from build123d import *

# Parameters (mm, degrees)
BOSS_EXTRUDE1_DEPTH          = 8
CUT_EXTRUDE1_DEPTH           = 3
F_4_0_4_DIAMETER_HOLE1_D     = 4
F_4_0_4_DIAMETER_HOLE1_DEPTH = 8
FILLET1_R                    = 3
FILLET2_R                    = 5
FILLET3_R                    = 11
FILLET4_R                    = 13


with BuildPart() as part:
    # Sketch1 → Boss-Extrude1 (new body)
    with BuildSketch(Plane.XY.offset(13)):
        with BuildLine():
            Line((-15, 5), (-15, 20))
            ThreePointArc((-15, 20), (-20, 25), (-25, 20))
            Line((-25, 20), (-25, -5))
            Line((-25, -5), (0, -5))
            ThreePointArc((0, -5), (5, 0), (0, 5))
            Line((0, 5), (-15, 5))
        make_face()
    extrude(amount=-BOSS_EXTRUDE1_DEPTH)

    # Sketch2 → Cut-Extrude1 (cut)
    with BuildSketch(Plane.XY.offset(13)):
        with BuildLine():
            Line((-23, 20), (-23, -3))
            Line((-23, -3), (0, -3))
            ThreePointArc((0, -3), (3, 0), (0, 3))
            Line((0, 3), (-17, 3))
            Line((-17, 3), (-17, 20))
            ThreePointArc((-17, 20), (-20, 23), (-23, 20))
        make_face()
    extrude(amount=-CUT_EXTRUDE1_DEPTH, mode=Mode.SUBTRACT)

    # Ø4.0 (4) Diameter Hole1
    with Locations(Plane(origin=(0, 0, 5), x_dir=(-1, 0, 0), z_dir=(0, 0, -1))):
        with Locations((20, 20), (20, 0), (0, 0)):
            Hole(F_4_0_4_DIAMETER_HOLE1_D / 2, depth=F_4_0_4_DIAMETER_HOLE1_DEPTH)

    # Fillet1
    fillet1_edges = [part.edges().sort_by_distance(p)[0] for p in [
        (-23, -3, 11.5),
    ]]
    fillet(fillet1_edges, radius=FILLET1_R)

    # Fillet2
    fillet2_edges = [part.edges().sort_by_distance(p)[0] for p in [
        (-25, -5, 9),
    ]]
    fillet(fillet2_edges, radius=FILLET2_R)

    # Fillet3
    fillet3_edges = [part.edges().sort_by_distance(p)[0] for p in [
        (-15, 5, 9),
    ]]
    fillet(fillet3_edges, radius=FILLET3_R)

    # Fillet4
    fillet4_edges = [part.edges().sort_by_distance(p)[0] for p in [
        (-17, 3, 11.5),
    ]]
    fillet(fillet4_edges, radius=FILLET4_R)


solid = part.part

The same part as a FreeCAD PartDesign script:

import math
import FreeCAD as App
import Part
import Sketcher
from FreeCAD import Vector
Q = App.Units.Quantity


def edges_at(feature, points):
    """Names of the edges that pass closest to the given points."""
    edges = feature.Shape.Edges
    near = lambda p: min(range(len(edges)), key=lambda i: edges[i].distToShape(Part.Vertex(*p))[0])
    return sorted({f"Edge{near(p) + 1}" for p in points})

doc = App.newDocument("Part")
body = doc.addObject("PartDesign::Body", "Body")

sketch1 = doc.addObject("Sketcher::SketchObject", "Sketch")
body.addObject(sketch1)
sketch1.AttachmentSupport = (doc.XY_Plane, [""])
sketch1.MapMode = "FlatFace"
sketch1.AttachmentOffset = App.Placement(Vector(0, 0, 13), App.Rotation())
sketch1.addGeometry(Part.LineSegment(Vector(-15, 5, 0), Vector(-15, 20, 0)), False)
sketch1.addGeometry(Part.ArcOfCircle(Part.Circle(Vector(-20, 20, 0), Vector(0, 0, 1), 5), math.radians(0), math.radians(180)), False)
sketch1.addGeometry(Part.LineSegment(Vector(-25, 20, 0), Vector(-25, -5, 0)), False)
sketch1.addGeometry(Part.LineSegment(Vector(-25, -5, 0), Vector(0, -5, 0)), False)
sketch1.addGeometry(Part.ArcOfCircle(Part.Circle(Vector(0, 0, 0), Vector(0, 0, 1), 5), math.radians(-90), math.radians(90)), False)
sketch1.addGeometry(Part.LineSegment(Vector(0, 5, 0), Vector(-15, 5, 0)), False)
sketch1.addConstraint(Sketcher.Constraint("Tangent", 0, 2, 1, 1))
sketch1.addConstraint(Sketcher.Constraint("Tangent", 1, 2, 2, 1))
sketch1.addConstraint(Sketcher.Constraint("Coincident", 2, 2, 3, 1))
sketch1.addConstraint(Sketcher.Constraint("Tangent", 3, 2, 4, 1))
sketch1.addConstraint(Sketcher.Constraint("Tangent", 4, 2, 5, 1))
sketch1.addConstraint(Sketcher.Constraint("Coincident", 5, 2, 0, 1))
sketch1.addConstraint(Sketcher.Constraint("Vertical", 0))
sketch1.addConstraint(Sketcher.Constraint("Vertical", 2))
sketch1.addConstraint(Sketcher.Constraint("Horizontal", 3))
sketch1.addConstraint(Sketcher.Constraint("Horizontal", 5))
sketch1.addConstraint(Sketcher.Constraint("Coincident", 4, 3, -1, 1))
sketch1.addConstraint(Sketcher.Constraint("Equal", 1, 4))
sketch1.addConstraint(Sketcher.Constraint("Equal", 5, 0))
sketch1.addConstraint(Sketcher.Constraint("Radius", 1, Q("5 mm")))
sketch1.addConstraint(Sketcher.Constraint("DistanceX", 3, 1, 3, 2, Q("25 mm")))
pad1 = doc.addObject("PartDesign::Pad", "Pad")
body.addObject(pad1)
pad1.Profile = sketch1
pad1.Length = 8
pad1.Reversed = True

sketch2 = doc.addObject("Sketcher::SketchObject", "Sketch001")
body.addObject(sketch2)
sketch2.AttachmentSupport = (doc.XY_Plane, [""])
sketch2.MapMode = "FlatFace"
sketch2.AttachmentOffset = App.Placement(Vector(0, 0, 13), App.Rotation())
sketch2.addGeometry(Part.LineSegment(Vector(-23, 20, 0), Vector(-23, -3, 0)), False)
sketch2.addGeometry(Part.LineSegment(Vector(-23, -3, 0), Vector(0, -3, 0)), False)
sketch2.addGeometry(Part.ArcOfCircle(Part.Circle(Vector(0, 0, 0), Vector(0, 0, 1), 3), math.radians(-90), math.radians(90)), False)
sketch2.addGeometry(Part.LineSegment(Vector(0, 3, 0), Vector(-17, 3, 0)), False)
sketch2.addGeometry(Part.LineSegment(Vector(-17, 3, 0), Vector(-17, 20, 0)), False)
sketch2.addGeometry(Part.ArcOfCircle(Part.Circle(Vector(-20, 20, 0), Vector(0, 0, 1), 3), math.radians(0), math.radians(180)), False)
sketch2.addConstraint(Sketcher.Constraint("Coincident", 0, 2, 1, 1))
sketch2.addConstraint(Sketcher.Constraint("Tangent", 1, 2, 2, 1))
sketch2.addConstraint(Sketcher.Constraint("Tangent", 2, 2, 3, 1))
sketch2.addConstraint(Sketcher.Constraint("Coincident", 3, 2, 4, 1))
sketch2.addConstraint(Sketcher.Constraint("Tangent", 4, 2, 5, 1))
sketch2.addConstraint(Sketcher.Constraint("Tangent", 5, 2, 0, 1))
sketch2.addConstraint(Sketcher.Constraint("Vertical", 0))
sketch2.addConstraint(Sketcher.Constraint("Horizontal", 1))
sketch2.addConstraint(Sketcher.Constraint("Horizontal", 3))
sketch2.addConstraint(Sketcher.Constraint("Vertical", 4))
sketch2.addConstraint(Sketcher.Constraint("Coincident", 2, 3, -1, 1))
sketch2.addConstraint(Sketcher.Constraint("Equal", 2, 5))
sketch2.addConstraint(Sketcher.Constraint("Equal", 1, 0))
sketch2.addConstraint(Sketcher.Constraint("Radius", 2, Q("3 mm")))
sketch2.addConstraint(Sketcher.Constraint("DistanceX", 1, 1, 1, 2, Q("23 mm")))
pocket1 = doc.addObject("PartDesign::Pocket", "Pocket")
body.addObject(pocket1)
pocket1.Profile = sketch2
pocket1.Length = 3

sketch3 = doc.addObject("Sketcher::SketchObject", "Sketch002")
body.addObject(sketch3)
sketch3.AttachmentSupport = (doc.XY_Plane, [""])
sketch3.MapMode = "FlatFace"
sketch3.AttachmentOffset = App.Placement(Vector(0, 0, 5), App.Rotation())
sketch3.addGeometry(Part.Circle(Vector(-20, 20, 0), Vector(0, 0, 1), 2), False)
sketch3.addGeometry(Part.Circle(Vector(-20, 0, 0), Vector(0, 0, 1), 2), False)
sketch3.addGeometry(Part.Circle(Vector(0, 0, 0), Vector(0, 0, 1), 2), False)
sketch3.addConstraint(Sketcher.Constraint("Coincident", 2, 3, -1, 1))
sketch3.addConstraint(Sketcher.Constraint("Equal", 0, 1))
sketch3.addConstraint(Sketcher.Constraint("Equal", 1, 2))
sketch3.addConstraint(Sketcher.Constraint("PointOnObject", 1, 3, -1))
sketch3.addConstraint(Sketcher.Constraint("Vertical", 0, 3, 1, 3))
sketch3.addConstraint(Sketcher.Constraint("Diameter", 0, Q("4 mm")))
sketch3.addConstraint(Sketcher.Constraint("DistanceX", 0, 3, -1, 1, Q("20 mm")))
sketch3.addConstraint(Sketcher.Constraint("DistanceY", -1, 1, 0, 3, Q("20 mm")))
doc.recompute()
hole = doc.addObject("PartDesign::Hole", "Hole")
body.addObject(hole)
hole.Profile = sketch3
hole.ThreadType = "None"
hole.Diameter = 4
hole.DepthType = "Dimension"
hole.Depth = 8
hole.DrillPoint = "Flat"
hole.Reversed = True
doc.recompute()

fillet = doc.addObject("PartDesign::Fillet", "Fillet")
body.addObject(fillet)
fillet.Base = (hole, edges_at(hole, [(-23, -3, 11.5)]))
fillet.Radius = 3
doc.recompute()

fillet2 = doc.addObject("PartDesign::Fillet", "Fillet001")
body.addObject(fillet2)
fillet2.Base = (fillet, edges_at(fillet, [(-25, -5, 9)]))
fillet2.Radius = 5
doc.recompute()

fillet3 = doc.addObject("PartDesign::Fillet", "Fillet002")
body.addObject(fillet3)
fillet3.Base = (fillet2, edges_at(fillet2, [(-15, 5, 9)]))
fillet3.Radius = 11
doc.recompute()

fillet4 = doc.addObject("PartDesign::Fillet", "Fillet003")
body.addObject(fillet4)
fillet4.Base = (fillet3, edges_at(fillet3, [(-17, 3, 11.5)]))
fillet4.Radius = 13

doc.recompute()
